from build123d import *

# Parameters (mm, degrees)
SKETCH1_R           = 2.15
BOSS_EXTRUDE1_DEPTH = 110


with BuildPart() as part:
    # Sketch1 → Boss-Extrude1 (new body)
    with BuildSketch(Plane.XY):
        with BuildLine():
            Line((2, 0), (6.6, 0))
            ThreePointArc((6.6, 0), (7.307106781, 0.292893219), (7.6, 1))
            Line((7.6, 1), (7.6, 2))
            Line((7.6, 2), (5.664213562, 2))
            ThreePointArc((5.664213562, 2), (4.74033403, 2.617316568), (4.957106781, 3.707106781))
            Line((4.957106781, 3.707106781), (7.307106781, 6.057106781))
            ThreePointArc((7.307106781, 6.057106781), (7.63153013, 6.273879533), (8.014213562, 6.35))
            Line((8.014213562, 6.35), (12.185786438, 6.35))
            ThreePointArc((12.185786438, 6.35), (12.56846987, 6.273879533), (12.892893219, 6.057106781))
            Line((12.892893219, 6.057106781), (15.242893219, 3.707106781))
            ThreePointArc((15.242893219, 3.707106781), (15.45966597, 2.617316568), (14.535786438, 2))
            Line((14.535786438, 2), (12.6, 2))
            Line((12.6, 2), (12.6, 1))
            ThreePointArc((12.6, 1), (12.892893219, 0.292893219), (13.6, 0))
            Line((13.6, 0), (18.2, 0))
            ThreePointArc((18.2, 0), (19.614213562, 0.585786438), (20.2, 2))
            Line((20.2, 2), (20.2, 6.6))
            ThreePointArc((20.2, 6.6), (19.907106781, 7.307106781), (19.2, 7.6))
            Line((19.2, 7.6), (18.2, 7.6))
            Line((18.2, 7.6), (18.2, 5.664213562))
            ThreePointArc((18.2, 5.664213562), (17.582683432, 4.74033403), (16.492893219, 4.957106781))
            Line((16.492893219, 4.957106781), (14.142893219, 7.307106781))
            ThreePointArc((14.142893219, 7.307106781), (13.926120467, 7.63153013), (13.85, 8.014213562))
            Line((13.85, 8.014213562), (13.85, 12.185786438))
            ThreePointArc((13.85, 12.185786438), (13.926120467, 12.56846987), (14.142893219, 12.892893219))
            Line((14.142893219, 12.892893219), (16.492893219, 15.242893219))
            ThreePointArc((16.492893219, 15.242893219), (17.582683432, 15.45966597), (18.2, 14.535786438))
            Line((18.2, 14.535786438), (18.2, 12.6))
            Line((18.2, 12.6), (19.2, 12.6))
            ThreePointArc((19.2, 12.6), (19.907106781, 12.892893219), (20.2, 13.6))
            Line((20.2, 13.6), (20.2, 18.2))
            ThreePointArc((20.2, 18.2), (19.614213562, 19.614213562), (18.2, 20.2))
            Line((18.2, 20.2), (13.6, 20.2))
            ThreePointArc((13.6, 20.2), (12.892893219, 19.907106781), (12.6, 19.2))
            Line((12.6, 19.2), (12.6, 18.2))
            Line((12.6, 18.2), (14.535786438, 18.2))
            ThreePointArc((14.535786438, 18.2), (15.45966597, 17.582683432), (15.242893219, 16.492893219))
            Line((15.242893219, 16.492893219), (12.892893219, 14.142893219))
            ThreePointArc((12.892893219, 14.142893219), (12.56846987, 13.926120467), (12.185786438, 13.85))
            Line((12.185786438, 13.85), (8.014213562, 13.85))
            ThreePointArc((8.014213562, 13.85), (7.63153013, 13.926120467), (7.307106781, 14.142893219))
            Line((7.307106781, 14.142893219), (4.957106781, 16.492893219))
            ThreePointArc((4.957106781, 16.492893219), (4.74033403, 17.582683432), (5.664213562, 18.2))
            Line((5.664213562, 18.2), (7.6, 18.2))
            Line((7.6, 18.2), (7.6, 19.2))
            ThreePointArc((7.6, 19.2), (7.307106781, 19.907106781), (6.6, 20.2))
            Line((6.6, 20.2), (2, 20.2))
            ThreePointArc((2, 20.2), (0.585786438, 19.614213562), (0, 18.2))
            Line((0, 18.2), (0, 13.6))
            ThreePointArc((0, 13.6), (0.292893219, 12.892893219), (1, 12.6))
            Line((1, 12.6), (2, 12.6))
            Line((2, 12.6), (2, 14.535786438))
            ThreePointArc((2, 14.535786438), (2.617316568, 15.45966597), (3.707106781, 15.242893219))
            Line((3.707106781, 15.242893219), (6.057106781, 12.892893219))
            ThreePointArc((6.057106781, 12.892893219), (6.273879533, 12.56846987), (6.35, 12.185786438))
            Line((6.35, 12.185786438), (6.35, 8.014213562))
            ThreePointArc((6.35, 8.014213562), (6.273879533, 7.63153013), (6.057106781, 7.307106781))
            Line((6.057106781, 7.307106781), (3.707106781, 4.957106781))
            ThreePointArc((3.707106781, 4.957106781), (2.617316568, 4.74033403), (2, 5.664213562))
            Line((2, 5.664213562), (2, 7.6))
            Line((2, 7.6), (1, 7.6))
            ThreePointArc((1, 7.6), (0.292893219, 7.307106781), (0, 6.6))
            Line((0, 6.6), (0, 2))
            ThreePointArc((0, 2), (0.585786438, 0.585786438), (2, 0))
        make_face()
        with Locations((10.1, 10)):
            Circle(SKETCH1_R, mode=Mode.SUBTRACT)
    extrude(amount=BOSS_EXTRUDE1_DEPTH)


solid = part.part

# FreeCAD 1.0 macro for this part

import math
import FreeCAD as App
import Part
import Sketcher
Q = App.Units.Quantity

doc = App.newDocument("Part")
body = doc.addObject("PartDesign::Body", "Body")

sketch1 = doc.addObject("Sketcher::SketchObject", "Sketch")
body.addObject(sketch1)
sketch1.AttachmentSupport = (doc.XY_Plane, [""])
sketch1.MapMode = "FlatFace"
sketch1.addGeometry(Part.LineSegment(App.Vector(2, 0, 0), App.Vector(6.6, 0, 0)), False)
sketch1.addGeometry(Part.ArcOfCircle(Part.Circle(App.Vector(6.6, 1, 0), App.Vector(0, 0, 1), 1), math.radians(-90), math.radians(0)), False)
sketch1.addGeometry(Part.LineSegment(App.Vector(7.6, 1, 0), App.Vector(7.6, 2, 0)), False)
sketch1.addGeometry(Part.LineSegment(App.Vector(7.6, 2, 0), App.Vector(5.7, 2, 0)), False)
sketch1.addGeometry(Part.ArcOfCircle(Part.Circle(App.Vector(5.7, 3, 0), App.Vector(0, 0, 1), 1), math.radians(135), math.radians(270)), False)
sketch1.addGeometry(Part.LineSegment(App.Vector(5, 3.7, 0), App.Vector(7.3, 6.1, 0)), False)
sketch1.addGeometry(Part.ArcOfCircle(Part.Circle(App.Vector(8, 5.4, 0), App.Vector(0, 0, 1), 1), math.radians(90), math.radians(135)), False)
sketch1.addGeometry(Part.LineSegment(App.Vector(8, 6.3, 0), App.Vector(12.2, 6.3, 0)), False)
sketch1.addGeometry(Part.ArcOfCircle(Part.Circle(App.Vector(12.2, 5.4, 0), App.Vector(0, 0, 1), 1), math.radians(45), math.radians(90)), False)
sketch1.addGeometry(Part.LineSegment(App.Vector(12.9, 6.1, 0), App.Vector(15.2, 3.7, 0)), False)
sketch1.addGeometry(Part.ArcOfCircle(Part.Circle(App.Vector(14.5, 3, 0), App.Vector(0, 0, 1), 1), math.radians(-90), math.radians(45)), False)
sketch1.addGeometry(Part.LineSegment(App.Vector(14.5, 2, 0), App.Vector(12.6, 2, 0)), False)
sketch1.addGeometry(Part.LineSegment(App.Vector(12.6, 2, 0), App.Vector(12.6, 1, 0)), False)
sketch1.addGeometry(Part.ArcOfCircle(Part.Circle(App.Vector(13.6, 1, 0), App.Vector(0, 0, 1), 1), math.radians(-180), math.radians(-90)), False)
sketch1.addGeometry(Part.LineSegment(App.Vector(13.6, 0, 0), App.Vector(18.2, 0, 0)), False)
sketch1.addGeometry(Part.ArcOfCircle(Part.Circle(App.Vector(18.2, 2, 0), App.Vector(0, 0, 1), 2), math.radians(-90), math.radians(0)), False)
sketch1.addGeometry(Part.LineSegment(App.Vector(20.2, 2, 0), App.Vector(20.2, 6.6, 0)), False)
sketch1.addGeometry(Part.ArcOfCircle(Part.Circle(App.Vector(19.2, 6.6, 0), App.Vector(0, 0, 1), 1), math.radians(0), math.radians(90)), False)
sketch1.addGeometry(Part.LineSegment(App.Vector(19.2, 7.6, 0), App.Vector(18.2, 7.6, 0)), False)
sketch1.addGeometry(Part.LineSegment(App.Vector(18.2, 7.6, 0), App.Vector(18.2, 5.7, 0)), False)
sketch1.addGeometry(Part.ArcOfCircle(Part.Circle(App.Vector(17.2, 5.7, 0), App.Vector(0, 0, 1), 1), math.radians(-135), math.radians(0)), False)
sketch1.addGeometry(Part.LineSegment(App.Vector(16.5, 5, 0), App.Vector(14.1, 7.3, 0)), False)
sketch1.addGeometry(Part.ArcOfCircle(Part.Circle(App.Vector(14.8, 8, 0), App.Vector(0, 0, 1), 1), math.radians(180), math.radians(225)), False)
sketch1.addGeometry(Part.LineSegment(App.Vector(13.8, 8, 0), App.Vector(13.8, 12.2, 0)), False)
sketch1.addGeometry(Part.ArcOfCircle(Part.Circle(App.Vector(14.8, 12.2, 0), App.Vector(0, 0, 1), 1), math.radians(135), math.radians(180)), False)
sketch1.addGeometry(Part.LineSegment(App.Vector(14.1, 12.9, 0), App.Vector(16.5, 15.2, 0)), False)
sketch1.addGeometry(Part.ArcOfCircle(Part.Circle(App.Vector(17.2, 14.5, 0), App.Vector(0, 0, 1), 1), math.radians(0), math.radians(135)), False)
sketch1.addGeometry(Part.LineSegment(App.Vector(18.2, 14.5, 0), App.Vector(18.2, 12.6, 0)), False)
sketch1.addGeometry(Part.LineSegment(App.Vector(18.2, 12.6, 0), App.Vector(19.2, 12.6, 0)), False)
sketch1.addGeometry(Part.ArcOfCircle(Part.Circle(App.Vector(19.2, 13.6, 0), App.Vector(0, 0, 1), 1), math.radians(-90), math.radians(0)), False)
sketch1.addGeometry(Part.LineSegment(App.Vector(20.2, 13.6, 0), App.Vector(20.2, 18.2, 0)), False)
sketch1.addGeometry(Part.ArcOfCircle(Part.Circle(App.Vector(18.2, 18.2, 0), App.Vector(0, 0, 1), 2), math.radians(0), math.radians(90)), False)
sketch1.addGeometry(Part.LineSegment(App.Vector(18.2, 20.2, 0), App.Vector(13.6, 20.2, 0)), False)
sketch1.addGeometry(Part.ArcOfCircle(Part.Circle(App.Vector(13.6, 19.2, 0), App.Vector(0, 0, 1), 1), math.radians(90), math.radians(180)), False)
sketch1.addGeometry(Part.LineSegment(App.Vector(12.6, 19.2, 0), App.Vector(12.6, 18.2, 0)), False)
sketch1.addGeometry(Part.LineSegment(App.Vector(12.6, 18.2, 0), App.Vector(14.5, 18.2, 0)), False)
sketch1.addGeometry(Part.ArcOfCircle(Part.Circle(App.Vector(14.5, 17.2, 0), App.Vector(0, 0, 1), 1), math.radians(-45), math.radians(90)), False)
sketch1.addGeometry(Part.LineSegment(App.Vector(15.2, 16.5, 0), App.Vector(12.9, 14.1, 0)), False)
sketch1.addGeometry(Part.ArcOfCircle(Part.Circle(App.Vector(12.2, 14.8, 0), App.Vector(0, 0, 1), 1), math.radians(-90), math.radians(-45)), False)
sketch1.addGeometry(Part.LineSegment(App.Vector(12.2, 13.8, 0), App.Vector(8, 13.8, 0)), False)
sketch1.addGeometry(Part.ArcOfCircle(Part.Circle(App.Vector(8, 14.8, 0), App.Vector(0, 0, 1), 1), math.radians(-135), math.radians(-90)), False)
sketch1.addGeometry(Part.LineSegment(App.Vector(7.3, 14.1, 0), App.Vector(5, 16.5, 0)), False)
sketch1.addGeometry(Part.ArcOfCircle(Part.Circle(App.Vector(5.7, 17.2, 0), App.Vector(0, 0, 1), 1), math.radians(90), math.radians(225)), False)
sketch1.addGeometry(Part.LineSegment(App.Vector(5.7, 18.2, 0), App.Vector(7.6, 18.2, 0)), False)
sketch1.addGeometry(Part.LineSegment(App.Vector(7.6, 18.2, 0), App.Vector(7.6, 19.2, 0)), False)
sketch1.addGeometry(Part.ArcOfCircle(Part.Circle(App.Vector(6.6, 19.2, 0), App.Vector(0, 0, 1), 1), math.radians(0), math.radians(90)), False)
sketch1.addGeometry(Part.LineSegment(App.Vector(6.6, 20.2, 0), App.Vector(2, 20.2, 0)), False)
sketch1.addGeometry(Part.ArcOfCircle(Part.Circle(App.Vector(2, 18.2, 0), App.Vector(0, 0, 1), 2), math.radians(90), math.radians(180)), False)
sketch1.addGeometry(Part.LineSegment(App.Vector(0, 18.2, 0), App.Vector(0, 13.6, 0)), False)
sketch1.addGeometry(Part.ArcOfCircle(Part.Circle(App.Vector(1, 13.6, 0), App.Vector(0, 0, 1), 1), math.radians(-180), math.radians(-90)), False)
sketch1.addGeometry(Part.LineSegment(App.Vector(1, 12.6, 0), App.Vector(2, 12.6, 0)), False)
sketch1.addGeometry(Part.LineSegment(App.Vector(2, 12.6, 0), App.Vector(2, 14.5, 0)), False)
sketch1.addGeometry(Part.ArcOfCircle(Part.Circle(App.Vector(3, 14.5, 0), App.Vector(0, 0, 1), 1), math.radians(45), math.radians(180)), False)
sketch1.addGeometry(Part.LineSegment(App.Vector(3.7, 15.2, 0), App.Vector(6.1, 12.9, 0)), False)
sketch1.addGeometry(Part.ArcOfCircle(Part.Circle(App.Vector(5.4, 12.2, 0), App.Vector(0, 0, 1), 1), math.radians(0), math.radians(45)), False)
sketch1.addGeometry(Part.LineSegment(App.Vector(6.3, 12.2, 0), App.Vector(6.3, 8, 0)), False)
sketch1.addGeometry(Part.ArcOfCircle(Part.Circle(App.Vector(5.4, 8, 0), App.Vector(0, 0, 1), 1), math.radians(-45), math.radians(0)), False)
sketch1.addGeometry(Part.LineSegment(App.Vector(6.1, 7.3, 0), App.Vector(3.7, 5, 0)), False)
sketch1.addGeometry(Part.ArcOfCircle(Part.Circle(App.Vector(3, 5.7, 0), App.Vector(0, 0, 1), 1), math.radians(-180), math.radians(-45)), False)
sketch1.addGeometry(Part.LineSegment(App.Vector(2, 5.7, 0), App.Vector(2, 7.6, 0)), False)
sketch1.addGeometry(Part.LineSegment(App.Vector(2, 7.6, 0), App.Vector(1, 7.6, 0)), False)
sketch1.addGeometry(Part.ArcOfCircle(Part.Circle(App.Vector(1, 6.6, 0), App.Vector(0, 0, 1), 1), math.radians(90), math.radians(180)), False)
sketch1.addGeometry(Part.LineSegment(App.Vector(0, 6.6, 0), App.Vector(0, 2, 0)), False)
sketch1.addGeometry(Part.ArcOfCircle(Part.Circle(App.Vector(2, 2, 0), App.Vector(0, 0, 1), 2), math.radians(-180), math.radians(-90)), False)
sketch1.addGeometry(Part.Circle(App.Vector(10.1, 10, 0), App.Vector(0, 0, 1), 2.1), False)
sketch1.addConstraint(Sketcher.Constraint("Tangent", 0, 2, 1, 1))
sketch1.addConstraint(Sketcher.Constraint("Tangent", 1, 2, 2, 1))
sketch1.addConstraint(Sketcher.Constraint("Coincident", 2, 2, 3, 1))
sketch1.addConstraint(Sketcher.Constraint("Tangent", 3, 2, 4, 2))
sketch1.addConstraint(Sketcher.Constraint("Tangent", 4, 1, 5, 1))
sketch1.addConstraint(Sketcher.Constraint("Tangent", 5, 2, 6, 2))
sketch1.addConstraint(Sketcher.Constraint("Tangent", 6, 1, 7, 1))
sketch1.addConstraint(Sketcher.Constraint("Tangent", 7, 2, 8, 2))
sketch1.addConstraint(Sketcher.Constraint("Tangent", 8, 1, 9, 1))
sketch1.addConstraint(Sketcher.Constraint("Tangent", 9, 2, 10, 2))
sketch1.addConstraint(Sketcher.Constraint("Tangent", 10, 1, 11, 1))
sketch1.addConstraint(Sketcher.Constraint("Coincident", 11, 2, 12, 1))
sketch1.addConstraint(Sketcher.Constraint("Tangent", 12, 2, 13, 1))
sketch1.addConstraint(Sketcher.Constraint("Tangent", 13, 2, 14, 1))
sketch1.addConstraint(Sketcher.Constraint("Tangent", 14, 2, 15, 1))
sketch1.addConstraint(Sketcher.Constraint("Tangent", 15, 2, 16, 1))
sketch1.addConstraint(Sketcher.Constraint("Tangent", 16, 2, 17, 1))
sketch1.addConstraint(Sketcher.Constraint("Tangent", 17, 2, 18, 1))
sketch1.addConstraint(Sketcher.Constraint("Coincident", 18, 2, 19, 1))
sketch1.addConstraint(Sketcher.Constraint("Tangent", 19, 2, 20, 2))
sketch1.addConstraint(Sketcher.Constraint("Tangent", 20, 1, 21, 1))
sketch1.addConstraint(Sketcher.Constraint("Tangent", 21, 2, 22, 2))
sketch1.addConstraint(Sketcher.Constraint("Tangent", 22, 1, 23, 1))
sketch1.addConstraint(Sketcher.Constraint("Tangent", 23, 2, 24, 2))
sketch1.addConstraint(Sketcher.Constraint("Tangent", 24, 1, 25, 1))
sketch1.addConstraint(Sketcher.Constraint("Tangent", 25, 2, 26, 2))
sketch1.addConstraint(Sketcher.Constraint("Tangent", 26, 1, 27, 1))
sketch1.addConstraint(Sketcher.Constraint("Coincident", 27, 2, 28, 1))
sketch1.addConstraint(Sketcher.Constraint("Tangent", 28, 2, 29, 1))
sketch1.addConstraint(Sketcher.Constraint("Tangent", 29, 2, 30, 1))
sketch1.addConstraint(Sketcher.Constraint("Tangent", 30, 2, 31, 1))
sketch1.addConstraint(Sketcher.Constraint("Tangent", 31, 2, 32, 1))
sketch1.addConstraint(Sketcher.Constraint("Tangent", 32, 2, 33, 1))
sketch1.addConstraint(Sketcher.Constraint("Tangent", 33, 2, 34, 1))
sketch1.addConstraint(Sketcher.Constraint("Coincident", 34, 2, 35, 1))
sketch1.addConstraint(Sketcher.Constraint("Tangent", 35, 2, 36, 2))
sketch1.addConstraint(Sketcher.Constraint("Tangent", 36, 1, 37, 1))
sketch1.addConstraint(Sketcher.Constraint("Tangent", 37, 2, 38, 2))
sketch1.addConstraint(Sketcher.Constraint("Tangent", 38, 1, 39, 1))
sketch1.addConstraint(Sketcher.Constraint("Tangent", 39, 2, 40, 2))
sketch1.addConstraint(Sketcher.Constraint("Tangent", 40, 1, 41, 1))
sketch1.addConstraint(Sketcher.Constraint("Tangent", 41, 2, 42, 2))
sketch1.addConstraint(Sketcher.Constraint("Tangent", 42, 1, 43, 1))
sketch1.addConstraint(Sketcher.Constraint("Coincident", 43, 2, 44, 1))
sketch1.addConstraint(Sketcher.Constraint("Tangent", 44, 2, 45, 1))
sketch1.addConstraint(Sketcher.Constraint("Tangent", 45, 2, 46, 1))
sketch1.addConstraint(Sketcher.Constraint("Tangent", 46, 2, 47, 1))
sketch1.addConstraint(Sketcher.Constraint("Tangent", 47, 2, 48, 1))
sketch1.addConstraint(Sketcher.Constraint("Tangent", 48, 2, 49, 1))
sketch1.addConstraint(Sketcher.Constraint("Tangent", 49, 2, 50, 1))
sketch1.addConstraint(Sketcher.Constraint("Coincident", 50, 2, 51, 1))
sketch1.addConstraint(Sketcher.Constraint("Tangent", 51, 2, 52, 2))
sketch1.addConstraint(Sketcher.Constraint("Tangent", 52, 1, 53, 1))
sketch1.addConstraint(Sketcher.Constraint("Tangent", 53, 2, 54, 2))
sketch1.addConstraint(Sketcher.Constraint("Tangent", 54, 1, 55, 1))
sketch1.addConstraint(Sketcher.Constraint("Tangent", 55, 2, 56, 2))
sketch1.addConstraint(Sketcher.Constraint("Tangent", 56, 1, 57, 1))
sketch1.addConstraint(Sketcher.Constraint("Tangent", 57, 2, 58, 2))
sketch1.addConstraint(Sketcher.Constraint("Tangent", 58, 1, 59, 1))
sketch1.addConstraint(Sketcher.Constraint("Coincident", 59, 2, 60, 1))
sketch1.addConstraint(Sketcher.Constraint("Tangent", 60, 2, 61, 1))
sketch1.addConstraint(Sketcher.Constraint("Tangent", 61, 2, 62, 1))
sketch1.addConstraint(Sketcher.Constraint("Tangent", 62, 2, 63, 1))
sketch1.addConstraint(Sketcher.Constraint("Tangent", 63, 2, 0, 1))
sketch1.addConstraint(Sketcher.Constraint("Horizontal", 0))
sketch1.addConstraint(Sketcher.Constraint("Vertical", 2))
sketch1.addConstraint(Sketcher.Constraint("Horizontal", 3))
sketch1.addConstraint(Sketcher.Constraint("Horizontal", 7))
sketch1.addConstraint(Sketcher.Constraint("Horizontal", 11))
sketch1.addConstraint(Sketcher.Constraint("Vertical", 12))
sketch1.addConstraint(Sketcher.Constraint("Horizontal", 14))
sketch1.addConstraint(Sketcher.Constraint("Vertical", 16))
sketch1.addConstraint(Sketcher.Constraint("Horizontal", 18))
sketch1.addConstraint(Sketcher.Constraint("Vertical", 19))
sketch1.addConstraint(Sketcher.Constraint("Vertical", 23))
sketch1.addConstraint(Sketcher.Constraint("Vertical", 27))
sketch1.addConstraint(Sketcher.Constraint("Horizontal", 28))
sketch1.addConstraint(Sketcher.Constraint("Vertical", 30))
sketch1.addConstraint(Sketcher.Constraint("Horizontal", 32))
sketch1.addConstraint(Sketcher.Constraint("Vertical", 34))
sketch1.addConstraint(Sketcher.Constraint("Horizontal", 35))
sketch1.addConstraint(Sketcher.Constraint("Horizontal", 39))
sketch1.addConstraint(Sketcher.Constraint("Horizontal", 43))
sketch1.addConstraint(Sketcher.Constraint("Vertical", 44))
sketch1.addConstraint(Sketcher.Constraint("Horizontal", 46))
sketch1.addConstraint(Sketcher.Constraint("Vertical", 48))
sketch1.addConstraint(Sketcher.Constraint("Horizontal", 50))
sketch1.addConstraint(Sketcher.Constraint("Vertical", 51))
sketch1.addConstraint(Sketcher.Constraint("Vertical", 55))
sketch1.addConstraint(Sketcher.Constraint("Vertical", 59))
sketch1.addConstraint(Sketcher.Constraint("Horizontal", 60))
sketch1.addConstraint(Sketcher.Constraint("Vertical", 62))
sketch1.addConstraint(Sketcher.Constraint("Equal", 1, 4))
sketch1.addConstraint(Sketcher.Constraint("Equal", 4, 6))
sketch1.addConstraint(Sketcher.Constraint("Equal", 6, 8))
sketch1.addConstraint(Sketcher.Constraint("Equal", 8, 10))
sketch1.addConstraint(Sketcher.Constraint("Equal", 10, 13))
sketch1.addConstraint(Sketcher.Constraint("Equal", 13, 17))
sketch1.addConstraint(Sketcher.Constraint("Equal", 17, 20))
sketch1.addConstraint(Sketcher.Constraint("Equal", 20, 22))
sketch1.addConstraint(Sketcher.Constraint("Equal", 22, 24))
sketch1.addConstraint(Sketcher.Constraint("Equal", 24, 26))
sketch1.addConstraint(Sketcher.Constraint("Equal", 26, 29))
sketch1.addConstraint(Sketcher.Constraint("Equal", 15, 31))
sketch1.addConstraint(Sketcher.Constraint("Equal", 29, 33))
sketch1.addConstraint(Sketcher.Constraint("Equal", 33, 36))
sketch1.addConstraint(Sketcher.Constraint("Equal", 36, 38))
sketch1.addConstraint(Sketcher.Constraint("Equal", 38, 40))
sketch1.addConstraint(Sketcher.Constraint("Equal", 40, 42))
sketch1.addConstraint(Sketcher.Constraint("Equal", 42, 45))
sketch1.addConstraint(Sketcher.Constraint("Equal", 31, 47))
sketch1.addConstraint(Sketcher.Constraint("Equal", 45, 49))
sketch1.addConstraint(Sketcher.Constraint("Equal", 49, 52))
sketch1.addConstraint(Sketcher.Constraint("Equal", 52, 54))
sketch1.addConstraint(Sketcher.Constraint("Equal", 54, 56))
sketch1.addConstraint(Sketcher.Constraint("Equal", 56, 58))
sketch1.addConstraint(Sketcher.Constraint("Equal", 58, 61))
sketch1.addConstraint(Sketcher.Constraint("Equal", 47, 63))
sketch1.addConstraint(Sketcher.Constraint("PointOnObject", 0, 2, -1))
sketch1.addConstraint(Sketcher.Constraint("PointOnObject", 13, 2, -1))
sketch1.addConstraint(Sketcher.Constraint("PointOnObject", 47, 2, -2))
sketch1.addConstraint(Sketcher.Constraint("PointOnObject", 61, 2, -2))
sketch1.addConstraint(Sketcher.Constraint("Perpendicular", 5, 9))
sketch1.addConstraint(Sketcher.Constraint("Parallel", 9, 21))
sketch1.addConstraint(Sketcher.Constraint("Perpendicular", 21, 25))
sketch1.addConstraint(Sketcher.Constraint("Parallel", 25, 37))
sketch1.addConstraint(Sketcher.Constraint("Perpendicular", 37, 41))
sketch1.addConstraint(Sketcher.Constraint("Parallel", 41, 53))
sketch1.addConstraint(Sketcher.Constraint("Perpendicular", 53, 57))
sketch1.addConstraint(Sketcher.Constraint("Horizontal", 4, 3, 10, 3))
sketch1.addConstraint(Sketcher.Constraint("Horizontal", 36, 3, 42, 3))
sketch1.addConstraint(Sketcher.Constraint("Horizontal", 33, 3, 45, 3))
sketch1.addConstraint(Sketcher.Constraint("Horizontal", 29, 3, 49, 3))
sketch1.addConstraint(Sketcher.Constraint("Horizontal", 26, 3, 52, 3))
sketch1.addConstraint(Sketcher.Constraint("Horizontal", 24, 3, 54, 3))
sketch1.addConstraint(Sketcher.Constraint("Horizontal", 22, 3, 56, 3))
sketch1.addConstraint(Sketcher.Constraint("Horizontal", 20, 3, 58, 3))
sketch1.addConstraint(Sketcher.Constraint("Horizontal", 17, 3, 61, 3))
sketch1.addConstraint(Sketcher.Constraint("Horizontal", 63, 3, 2, 2))
sketch1.addConstraint(Sketcher.Constraint("Horizontal", 5, 2, 8, 1))
sketch1.addConstraint(Sketcher.Constraint("Horizontal", 30, 2, 34, 2))
sketch1.addConstraint(Sketcher.Constraint("Vertical", 20, 3, 26, 3))
sketch1.addConstraint(Sketcher.Constraint("Vertical", 17, 3, 29, 3))
sketch1.addConstraint(Sketcher.Constraint("Vertical", 13, 3, 33, 3))
sketch1.addConstraint(Sketcher.Constraint("Vertical", 10, 3, 36, 3))
sketch1.addConstraint(Sketcher.Constraint("Vertical", 8, 3, 38, 3))
sketch1.addConstraint(Sketcher.Constraint("Vertical", 6, 3, 40, 3))
sketch1.addConstraint(Sketcher.Constraint("Vertical", 1, 3, 45, 3))
sketch1.addConstraint(Sketcher.Constraint("Vertical", 14, 2, 18, 2))
sketch1.addConstraint(Sketcher.Constraint("Vertical", 46, 2, 50, 2))
sketch1.addConstraint(Sketcher.Constraint("Equal", 3, 11))
sketch1.addConstraint(Sketcher.Constraint("Equal", 0, 14))
sketch1.addConstraint(Sketcher.Constraint("Equal", 46, 16))
sketch1.addConstraint(Sketcher.Constraint("Equal", 43, 19))
sketch1.addConstraint(Sketcher.Constraint("Equal", 39, 23))
sketch1.addConstraint(Sketcher.Constraint("Equal", 19, 27))
sketch1.addConstraint(Sketcher.Constraint("Equal", 16, 30))
sketch1.addConstraint(Sketcher.Constraint("Equal", 9, 21))
sketch1.addConstraint(Sketcher.Constraint("Radius", 1, Q("1 mm")))
sketch1.addConstraint(Sketcher.Constraint("Radius", 15, Q("2 mm")))
sketch1.addConstraint(Sketcher.Constraint("Diameter", 64, Q("4.3 mm")))
sketch1.addConstraint(Sketcher.Constraint("DistanceX", 0, 1, 0, 2, Q("4.6 mm")))
sketch1.addConstraint(Sketcher.Constraint("DistanceY", -1, 1, 64, 3, Q("10 mm")))
sketch1.addConstraint(Sketcher.Constraint("DistanceX", -1, 1, 13, 3, Q("13.6 mm")))
sketch1.addConstraint(Sketcher.Constraint("DistanceX", -1, 1, 64, 3, Q("10.1 mm")))
sketch1.addConstraint(Sketcher.Constraint("DistanceY", -1, 1, 6, 3, Q("5.35 mm")))
sketch1.addConstraint(Sketcher.Constraint("DistanceX", 3, 2, 3, 1, Q("1.935786 mm")))
pad1 = doc.addObject("PartDesign::Pad", "Pad")
body.addObject(pad1)
pad1.Profile = sketch1
pad1.Length = 110

doc.recompute()
